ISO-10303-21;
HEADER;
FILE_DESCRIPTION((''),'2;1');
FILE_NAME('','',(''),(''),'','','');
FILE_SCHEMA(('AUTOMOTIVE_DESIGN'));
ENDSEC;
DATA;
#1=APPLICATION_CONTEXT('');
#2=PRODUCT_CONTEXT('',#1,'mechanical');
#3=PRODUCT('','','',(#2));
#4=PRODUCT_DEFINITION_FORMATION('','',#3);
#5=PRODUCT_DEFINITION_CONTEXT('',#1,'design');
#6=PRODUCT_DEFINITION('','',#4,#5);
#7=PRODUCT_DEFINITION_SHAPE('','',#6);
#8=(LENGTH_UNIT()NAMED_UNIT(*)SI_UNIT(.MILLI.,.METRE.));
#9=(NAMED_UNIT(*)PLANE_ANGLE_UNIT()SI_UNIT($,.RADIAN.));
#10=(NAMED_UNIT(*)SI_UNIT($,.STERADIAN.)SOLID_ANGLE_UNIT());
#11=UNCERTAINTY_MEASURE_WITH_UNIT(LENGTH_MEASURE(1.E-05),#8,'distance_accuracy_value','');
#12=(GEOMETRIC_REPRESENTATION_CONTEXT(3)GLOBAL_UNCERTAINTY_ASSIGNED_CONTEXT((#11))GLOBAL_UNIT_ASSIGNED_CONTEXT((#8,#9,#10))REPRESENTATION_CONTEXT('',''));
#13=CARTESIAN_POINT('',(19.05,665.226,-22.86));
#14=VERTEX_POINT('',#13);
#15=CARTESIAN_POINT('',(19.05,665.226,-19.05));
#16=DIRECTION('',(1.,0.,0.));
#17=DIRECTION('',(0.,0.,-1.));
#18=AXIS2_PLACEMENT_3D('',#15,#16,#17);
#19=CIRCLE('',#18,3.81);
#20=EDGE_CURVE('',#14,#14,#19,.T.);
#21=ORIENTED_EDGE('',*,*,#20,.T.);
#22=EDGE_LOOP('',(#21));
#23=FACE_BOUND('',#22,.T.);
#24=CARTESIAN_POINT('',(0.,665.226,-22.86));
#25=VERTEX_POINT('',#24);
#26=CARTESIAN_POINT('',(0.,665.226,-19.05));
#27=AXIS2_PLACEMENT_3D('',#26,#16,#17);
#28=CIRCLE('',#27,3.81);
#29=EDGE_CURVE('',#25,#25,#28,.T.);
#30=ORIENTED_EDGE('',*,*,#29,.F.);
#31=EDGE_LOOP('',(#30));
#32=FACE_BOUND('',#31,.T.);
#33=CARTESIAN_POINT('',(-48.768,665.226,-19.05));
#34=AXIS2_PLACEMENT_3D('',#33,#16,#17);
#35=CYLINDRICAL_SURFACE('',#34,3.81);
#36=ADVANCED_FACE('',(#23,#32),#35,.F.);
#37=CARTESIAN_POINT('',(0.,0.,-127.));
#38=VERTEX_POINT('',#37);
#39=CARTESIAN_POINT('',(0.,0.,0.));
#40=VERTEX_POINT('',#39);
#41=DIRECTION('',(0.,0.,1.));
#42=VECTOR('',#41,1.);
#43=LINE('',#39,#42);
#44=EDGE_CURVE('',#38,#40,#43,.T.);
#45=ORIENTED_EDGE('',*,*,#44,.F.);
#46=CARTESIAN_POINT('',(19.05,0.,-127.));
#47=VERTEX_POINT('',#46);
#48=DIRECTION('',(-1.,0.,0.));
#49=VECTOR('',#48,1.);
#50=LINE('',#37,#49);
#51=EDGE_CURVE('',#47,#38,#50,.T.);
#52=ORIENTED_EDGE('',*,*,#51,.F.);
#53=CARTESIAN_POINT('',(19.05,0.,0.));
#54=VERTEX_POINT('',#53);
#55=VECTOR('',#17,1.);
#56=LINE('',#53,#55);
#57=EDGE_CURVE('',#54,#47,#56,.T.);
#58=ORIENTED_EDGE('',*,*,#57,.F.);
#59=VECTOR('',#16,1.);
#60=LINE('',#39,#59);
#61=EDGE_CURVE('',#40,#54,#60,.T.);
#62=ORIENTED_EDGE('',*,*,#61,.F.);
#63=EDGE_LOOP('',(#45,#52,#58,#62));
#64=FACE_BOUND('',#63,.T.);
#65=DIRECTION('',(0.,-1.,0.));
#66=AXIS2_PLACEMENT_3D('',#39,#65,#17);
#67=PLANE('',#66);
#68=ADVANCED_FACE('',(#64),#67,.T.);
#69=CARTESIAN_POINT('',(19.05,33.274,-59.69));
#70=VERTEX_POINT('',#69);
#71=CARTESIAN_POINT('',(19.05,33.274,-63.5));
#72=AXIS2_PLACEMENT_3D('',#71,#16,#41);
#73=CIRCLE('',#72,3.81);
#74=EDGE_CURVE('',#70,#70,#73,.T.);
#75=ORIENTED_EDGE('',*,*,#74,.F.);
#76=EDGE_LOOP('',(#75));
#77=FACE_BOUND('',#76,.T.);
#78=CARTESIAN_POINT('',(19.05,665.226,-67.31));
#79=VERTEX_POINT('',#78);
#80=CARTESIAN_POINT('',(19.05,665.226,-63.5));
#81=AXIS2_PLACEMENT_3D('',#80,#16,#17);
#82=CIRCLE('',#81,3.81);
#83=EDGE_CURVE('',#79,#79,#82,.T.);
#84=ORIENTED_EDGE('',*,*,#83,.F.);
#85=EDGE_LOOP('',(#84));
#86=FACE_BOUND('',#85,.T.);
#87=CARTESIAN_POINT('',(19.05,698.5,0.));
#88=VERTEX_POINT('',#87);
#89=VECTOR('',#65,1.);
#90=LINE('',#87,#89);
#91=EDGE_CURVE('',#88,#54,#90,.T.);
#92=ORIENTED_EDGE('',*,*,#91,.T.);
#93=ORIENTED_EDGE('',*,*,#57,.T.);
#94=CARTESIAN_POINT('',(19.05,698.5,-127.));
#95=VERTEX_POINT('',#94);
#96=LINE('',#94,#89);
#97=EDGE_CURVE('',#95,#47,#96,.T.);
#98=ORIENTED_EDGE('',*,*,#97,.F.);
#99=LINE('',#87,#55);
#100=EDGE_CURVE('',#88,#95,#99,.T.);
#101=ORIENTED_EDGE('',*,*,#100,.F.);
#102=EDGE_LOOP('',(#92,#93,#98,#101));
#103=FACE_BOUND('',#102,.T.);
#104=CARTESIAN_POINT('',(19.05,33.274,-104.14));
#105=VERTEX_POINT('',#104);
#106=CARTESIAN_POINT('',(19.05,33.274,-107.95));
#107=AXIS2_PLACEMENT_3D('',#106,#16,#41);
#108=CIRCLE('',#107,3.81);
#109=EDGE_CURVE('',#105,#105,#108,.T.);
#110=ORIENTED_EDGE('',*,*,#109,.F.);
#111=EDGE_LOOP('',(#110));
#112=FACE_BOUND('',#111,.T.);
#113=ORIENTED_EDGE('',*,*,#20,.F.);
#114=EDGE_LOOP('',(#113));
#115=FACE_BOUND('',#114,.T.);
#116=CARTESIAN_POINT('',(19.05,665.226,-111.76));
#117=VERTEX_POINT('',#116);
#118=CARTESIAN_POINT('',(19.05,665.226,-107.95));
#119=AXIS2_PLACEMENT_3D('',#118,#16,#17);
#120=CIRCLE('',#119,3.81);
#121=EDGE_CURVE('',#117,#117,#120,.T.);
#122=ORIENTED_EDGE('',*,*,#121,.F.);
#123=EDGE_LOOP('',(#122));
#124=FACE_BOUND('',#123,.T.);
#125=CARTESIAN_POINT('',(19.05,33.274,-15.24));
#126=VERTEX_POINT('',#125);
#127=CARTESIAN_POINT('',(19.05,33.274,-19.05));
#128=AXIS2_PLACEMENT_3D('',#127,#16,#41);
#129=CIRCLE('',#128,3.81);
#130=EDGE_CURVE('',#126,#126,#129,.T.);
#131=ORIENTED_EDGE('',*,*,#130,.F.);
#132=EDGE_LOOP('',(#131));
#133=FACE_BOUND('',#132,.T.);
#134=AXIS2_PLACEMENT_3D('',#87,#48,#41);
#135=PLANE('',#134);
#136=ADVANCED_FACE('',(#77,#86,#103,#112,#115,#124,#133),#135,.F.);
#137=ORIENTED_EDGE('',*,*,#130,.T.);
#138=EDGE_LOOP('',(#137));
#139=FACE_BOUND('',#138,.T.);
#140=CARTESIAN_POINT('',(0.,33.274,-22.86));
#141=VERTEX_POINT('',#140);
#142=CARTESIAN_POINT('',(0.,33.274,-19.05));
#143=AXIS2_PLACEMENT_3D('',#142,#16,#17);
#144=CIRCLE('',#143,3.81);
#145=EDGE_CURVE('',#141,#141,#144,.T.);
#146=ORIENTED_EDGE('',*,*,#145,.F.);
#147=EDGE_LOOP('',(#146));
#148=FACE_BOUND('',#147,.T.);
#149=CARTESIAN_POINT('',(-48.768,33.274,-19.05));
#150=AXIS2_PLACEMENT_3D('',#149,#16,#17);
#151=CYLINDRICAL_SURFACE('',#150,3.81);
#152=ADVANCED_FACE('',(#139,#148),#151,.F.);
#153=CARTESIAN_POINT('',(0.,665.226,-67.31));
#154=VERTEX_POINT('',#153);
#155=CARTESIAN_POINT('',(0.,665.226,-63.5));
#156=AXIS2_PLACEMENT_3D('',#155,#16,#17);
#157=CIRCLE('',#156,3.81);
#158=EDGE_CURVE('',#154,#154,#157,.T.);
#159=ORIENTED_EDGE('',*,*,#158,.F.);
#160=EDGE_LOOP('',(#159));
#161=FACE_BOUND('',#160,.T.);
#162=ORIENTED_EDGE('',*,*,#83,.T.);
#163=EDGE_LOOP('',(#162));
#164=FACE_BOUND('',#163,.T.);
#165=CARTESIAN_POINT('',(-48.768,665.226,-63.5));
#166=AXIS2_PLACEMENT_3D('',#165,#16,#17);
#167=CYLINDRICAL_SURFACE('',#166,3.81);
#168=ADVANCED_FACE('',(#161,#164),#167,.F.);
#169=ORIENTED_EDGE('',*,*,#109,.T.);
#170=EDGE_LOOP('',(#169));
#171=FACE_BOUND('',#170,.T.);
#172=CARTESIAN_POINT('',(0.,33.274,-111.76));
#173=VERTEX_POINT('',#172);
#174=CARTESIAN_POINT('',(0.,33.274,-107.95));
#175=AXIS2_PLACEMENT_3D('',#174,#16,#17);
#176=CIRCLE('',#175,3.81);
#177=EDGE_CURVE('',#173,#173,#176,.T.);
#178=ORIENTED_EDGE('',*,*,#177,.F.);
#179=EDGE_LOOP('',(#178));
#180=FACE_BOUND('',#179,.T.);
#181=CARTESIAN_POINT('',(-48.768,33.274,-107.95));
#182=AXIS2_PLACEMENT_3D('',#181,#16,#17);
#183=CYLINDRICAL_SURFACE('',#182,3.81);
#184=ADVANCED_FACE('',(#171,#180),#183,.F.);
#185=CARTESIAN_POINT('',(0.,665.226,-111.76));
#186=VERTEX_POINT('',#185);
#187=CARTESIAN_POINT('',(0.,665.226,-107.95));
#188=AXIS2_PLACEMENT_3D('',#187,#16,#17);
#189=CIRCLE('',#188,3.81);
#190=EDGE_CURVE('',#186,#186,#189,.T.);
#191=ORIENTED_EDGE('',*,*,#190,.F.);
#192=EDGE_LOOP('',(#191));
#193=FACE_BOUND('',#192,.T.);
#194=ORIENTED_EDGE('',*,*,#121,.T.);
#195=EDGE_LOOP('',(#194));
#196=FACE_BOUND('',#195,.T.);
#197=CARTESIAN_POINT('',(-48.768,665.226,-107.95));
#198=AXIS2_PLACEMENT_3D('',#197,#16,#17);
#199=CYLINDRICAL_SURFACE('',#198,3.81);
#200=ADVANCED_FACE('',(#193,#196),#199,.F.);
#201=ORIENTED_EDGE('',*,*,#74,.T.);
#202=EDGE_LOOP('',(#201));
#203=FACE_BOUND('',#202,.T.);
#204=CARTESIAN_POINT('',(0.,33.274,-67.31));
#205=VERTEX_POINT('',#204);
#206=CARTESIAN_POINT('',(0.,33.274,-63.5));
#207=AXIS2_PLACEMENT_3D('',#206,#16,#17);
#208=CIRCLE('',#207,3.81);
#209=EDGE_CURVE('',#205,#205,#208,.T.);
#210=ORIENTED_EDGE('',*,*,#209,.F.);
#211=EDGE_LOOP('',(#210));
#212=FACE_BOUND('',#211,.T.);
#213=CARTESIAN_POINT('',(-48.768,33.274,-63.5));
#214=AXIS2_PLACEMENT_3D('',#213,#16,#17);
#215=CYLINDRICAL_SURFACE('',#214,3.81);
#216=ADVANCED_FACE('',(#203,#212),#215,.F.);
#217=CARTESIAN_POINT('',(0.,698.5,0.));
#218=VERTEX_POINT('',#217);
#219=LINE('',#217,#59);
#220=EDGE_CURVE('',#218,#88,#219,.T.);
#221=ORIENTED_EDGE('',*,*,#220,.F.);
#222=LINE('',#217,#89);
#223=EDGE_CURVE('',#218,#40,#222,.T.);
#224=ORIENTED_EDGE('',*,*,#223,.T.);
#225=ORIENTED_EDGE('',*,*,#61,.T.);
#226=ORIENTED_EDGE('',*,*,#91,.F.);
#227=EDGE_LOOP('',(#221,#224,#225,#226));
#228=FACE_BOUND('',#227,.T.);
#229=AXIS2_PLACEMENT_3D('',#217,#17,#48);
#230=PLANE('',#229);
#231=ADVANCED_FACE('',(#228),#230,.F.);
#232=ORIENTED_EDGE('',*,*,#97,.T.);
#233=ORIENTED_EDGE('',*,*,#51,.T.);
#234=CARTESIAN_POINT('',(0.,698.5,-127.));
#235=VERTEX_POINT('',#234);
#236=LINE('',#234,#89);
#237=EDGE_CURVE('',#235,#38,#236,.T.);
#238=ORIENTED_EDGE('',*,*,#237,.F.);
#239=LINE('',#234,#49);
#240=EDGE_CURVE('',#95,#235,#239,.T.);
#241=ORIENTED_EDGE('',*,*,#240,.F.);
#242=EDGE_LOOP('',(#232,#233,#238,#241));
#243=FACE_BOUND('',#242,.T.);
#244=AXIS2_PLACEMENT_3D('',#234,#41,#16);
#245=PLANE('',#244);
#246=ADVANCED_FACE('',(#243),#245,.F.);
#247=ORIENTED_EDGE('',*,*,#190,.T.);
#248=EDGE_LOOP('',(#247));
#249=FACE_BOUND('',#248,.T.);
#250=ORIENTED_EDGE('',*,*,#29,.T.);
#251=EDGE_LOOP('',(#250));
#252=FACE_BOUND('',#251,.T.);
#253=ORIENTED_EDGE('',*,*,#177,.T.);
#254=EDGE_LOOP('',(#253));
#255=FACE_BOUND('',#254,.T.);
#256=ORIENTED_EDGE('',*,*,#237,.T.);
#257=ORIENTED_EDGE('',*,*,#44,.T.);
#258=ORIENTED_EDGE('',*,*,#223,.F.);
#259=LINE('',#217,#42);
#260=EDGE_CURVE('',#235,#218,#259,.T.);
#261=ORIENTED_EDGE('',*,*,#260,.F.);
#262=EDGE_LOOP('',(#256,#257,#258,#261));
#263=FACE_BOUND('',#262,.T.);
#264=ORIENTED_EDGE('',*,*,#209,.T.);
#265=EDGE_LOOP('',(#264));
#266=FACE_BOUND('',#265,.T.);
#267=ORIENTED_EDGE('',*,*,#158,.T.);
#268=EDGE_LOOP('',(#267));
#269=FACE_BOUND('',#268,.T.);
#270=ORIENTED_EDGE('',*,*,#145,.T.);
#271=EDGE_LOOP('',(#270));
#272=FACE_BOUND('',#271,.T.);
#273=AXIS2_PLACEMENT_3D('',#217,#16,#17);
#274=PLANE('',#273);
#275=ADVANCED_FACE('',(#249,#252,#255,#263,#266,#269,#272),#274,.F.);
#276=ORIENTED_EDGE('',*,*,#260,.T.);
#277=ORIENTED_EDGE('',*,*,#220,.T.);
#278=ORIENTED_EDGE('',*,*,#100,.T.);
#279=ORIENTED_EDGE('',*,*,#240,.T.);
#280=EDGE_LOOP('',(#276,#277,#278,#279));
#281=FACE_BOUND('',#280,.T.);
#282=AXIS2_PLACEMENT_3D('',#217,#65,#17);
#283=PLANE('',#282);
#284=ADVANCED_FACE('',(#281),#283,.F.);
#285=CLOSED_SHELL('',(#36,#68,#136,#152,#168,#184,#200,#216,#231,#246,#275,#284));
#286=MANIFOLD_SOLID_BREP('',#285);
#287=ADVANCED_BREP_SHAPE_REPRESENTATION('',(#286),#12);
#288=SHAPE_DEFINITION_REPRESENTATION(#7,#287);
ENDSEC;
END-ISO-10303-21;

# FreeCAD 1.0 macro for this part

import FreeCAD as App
import Part
import Sketcher
from FreeCAD import Vector
Q = App.Units.Quantity

doc = App.newDocument("Part")
params = doc.addObject("Spreadsheet::Sheet", "Params")
for row, (alias, value) in enumerate([
    ("sketch1_height", "5 in"),
    ("sketch1_width", "0.75 in"),
    ("pad1_length", "27.5 in"),
    ("sketch2_diameter", "0.3 in"),
    ("pocket1_length", "2.67 in"),
], start=1):
    params.set(f"A{row}", alias)
    params.set(f"B{row}", "=" + value)
    params.setAlias(f"B{row}", alias)

body = doc.addObject("PartDesign::Body", "Body")

# Sketch on XZ plane
sketch1 = body.newObject("Sketcher::SketchObject", "Sketch")
sketch1.AttachmentSupport = (doc.getObject("XZ_Plane"), [""])
sketch1.MapMode = "FlatFace"
sketch1.addGeometry([
    Part.LineSegment(Vector(0, -127, 0), Vector(0, 0, 0)),
    Part.LineSegment(Vector(0, 0, 0), Vector(19, 0, 0)),
    Part.LineSegment(Vector(19, 0, 0), Vector(19, -127, 0)),
    Part.LineSegment(Vector(19, -127, 0), Vector(0, -127, 0)),
], False)
sketch1.addConstraint([
    Sketcher.Constraint("Coincident", 0, 2, 1, 1),
    Sketcher.Constraint("Coincident", 1, 2, 2, 1),
    Sketcher.Constraint("Coincident", 2, 2, 3, 1),
    Sketcher.Constraint("Coincident", 3, 2, 0, 1),
    Sketcher.Constraint("Vertical", 0),
    Sketcher.Constraint("Horizontal", 1),
    Sketcher.Constraint("Vertical", 2),
    Sketcher.Constraint("Horizontal", 3),
    Sketcher.Constraint("Coincident", 0, 2, -1, 1),
    Sketcher.Constraint("DistanceY", 0, 1, 0, 2, Q("5 in")),
    Sketcher.Constraint("DistanceX", 1, 1, 1, 2, Q("0.75 in")),
])
sketch1.setExpression("Constraints[9]", "Params.sketch1_height")
sketch1.setExpression("Constraints[10]", "Params.sketch1_width")
pad1 = body.newObject("PartDesign::Pad", "Pad")
pad1.Profile = sketch1
pad1.setExpression("Length", "Params.pad1_length")
pad1.Reversed = True

# Sketch on YZ plane
sketch2 = body.newObject("Sketcher::SketchObject", "Sketch001")
sketch2.AttachmentSupport = (doc.getObject("YZ_Plane"), [""])
sketch2.MapMode = "FlatFace"
sketch2.AttachmentOffset = App.Placement(Vector(0, 0, 0.75 * 25.4), App.Rotation())
sketch2.addGeometry([
    Part.Circle(Vector(665.2, -108, 0), Vector(0, 0, 1), 3.8),  # 0
    Part.Circle(Vector(665.2, -63.5, 0), Vector(0, 0, 1), 3.8),  # 1
    Part.Circle(Vector(665.2, -19.1, 0), Vector(0, 0, 1), 3.8),  # 2
    Part.Circle(Vector(33.3, -19.1, 0), Vector(0, 0, 1), 3.8),  # 3
    Part.Circle(Vector(33.3, -63.5, 0), Vector(0, 0, 1), 3.8),  # 4
    Part.Circle(Vector(33.3, -108, 0), Vector(0, 0, 1), 3.8),  # 5
], False)
sketch2.addConstraint([
    Sketcher.Constraint("Equal", 0, 1),
    Sketcher.Constraint("Equal", 1, 2),
    Sketcher.Constraint("Equal", 2, 3),
    Sketcher.Constraint("Equal", 3, 4),
    Sketcher.Constraint("Equal", 4, 5),
    Sketcher.Constraint("Horizontal", 2, 3, 3, 3),
    Sketcher.Constraint("Horizontal", 1, 3, 4, 3),
    Sketcher.Constraint("Horizontal", 0, 3, 5, 3),
    Sketcher.Constraint("Vertical", 0, 3, 1, 3),
    Sketcher.Constraint("Vertical", 1, 3, 2, 3),
    Sketcher.Constraint("Vertical", 3, 3, 4, 3),
    Sketcher.Constraint("Vertical", 4, 3, 5, 3),
    Sketcher.Constraint("Diameter", 0, Q("0.3 in")),
    Sketcher.Constraint("DistanceY", 1, 3, -1, 1, Q("2.5 in")),
    Sketcher.Constraint("DistanceY", 0, 3, 2, 3, Q("3.5 in")),
    Sketcher.Constraint("DistanceX", -1, 1, 0, 3, Q("26.19 in")),
    Sketcher.Constraint("DistanceY", 0, 3, -1, 1, Q("4.25 in")),
    Sketcher.Constraint("DistanceX", -1, 1, 3, 3, Q("1.31 in")),
])
sketch2.setExpression("Constraints[12]", "Params.sketch2_diameter")
pocket1 = body.newObject("PartDesign::Pocket", "Pocket")
pocket1.Profile = sketch2
pocket1.setExpression("Length", "Params.pocket1_length")

doc.recompute()
